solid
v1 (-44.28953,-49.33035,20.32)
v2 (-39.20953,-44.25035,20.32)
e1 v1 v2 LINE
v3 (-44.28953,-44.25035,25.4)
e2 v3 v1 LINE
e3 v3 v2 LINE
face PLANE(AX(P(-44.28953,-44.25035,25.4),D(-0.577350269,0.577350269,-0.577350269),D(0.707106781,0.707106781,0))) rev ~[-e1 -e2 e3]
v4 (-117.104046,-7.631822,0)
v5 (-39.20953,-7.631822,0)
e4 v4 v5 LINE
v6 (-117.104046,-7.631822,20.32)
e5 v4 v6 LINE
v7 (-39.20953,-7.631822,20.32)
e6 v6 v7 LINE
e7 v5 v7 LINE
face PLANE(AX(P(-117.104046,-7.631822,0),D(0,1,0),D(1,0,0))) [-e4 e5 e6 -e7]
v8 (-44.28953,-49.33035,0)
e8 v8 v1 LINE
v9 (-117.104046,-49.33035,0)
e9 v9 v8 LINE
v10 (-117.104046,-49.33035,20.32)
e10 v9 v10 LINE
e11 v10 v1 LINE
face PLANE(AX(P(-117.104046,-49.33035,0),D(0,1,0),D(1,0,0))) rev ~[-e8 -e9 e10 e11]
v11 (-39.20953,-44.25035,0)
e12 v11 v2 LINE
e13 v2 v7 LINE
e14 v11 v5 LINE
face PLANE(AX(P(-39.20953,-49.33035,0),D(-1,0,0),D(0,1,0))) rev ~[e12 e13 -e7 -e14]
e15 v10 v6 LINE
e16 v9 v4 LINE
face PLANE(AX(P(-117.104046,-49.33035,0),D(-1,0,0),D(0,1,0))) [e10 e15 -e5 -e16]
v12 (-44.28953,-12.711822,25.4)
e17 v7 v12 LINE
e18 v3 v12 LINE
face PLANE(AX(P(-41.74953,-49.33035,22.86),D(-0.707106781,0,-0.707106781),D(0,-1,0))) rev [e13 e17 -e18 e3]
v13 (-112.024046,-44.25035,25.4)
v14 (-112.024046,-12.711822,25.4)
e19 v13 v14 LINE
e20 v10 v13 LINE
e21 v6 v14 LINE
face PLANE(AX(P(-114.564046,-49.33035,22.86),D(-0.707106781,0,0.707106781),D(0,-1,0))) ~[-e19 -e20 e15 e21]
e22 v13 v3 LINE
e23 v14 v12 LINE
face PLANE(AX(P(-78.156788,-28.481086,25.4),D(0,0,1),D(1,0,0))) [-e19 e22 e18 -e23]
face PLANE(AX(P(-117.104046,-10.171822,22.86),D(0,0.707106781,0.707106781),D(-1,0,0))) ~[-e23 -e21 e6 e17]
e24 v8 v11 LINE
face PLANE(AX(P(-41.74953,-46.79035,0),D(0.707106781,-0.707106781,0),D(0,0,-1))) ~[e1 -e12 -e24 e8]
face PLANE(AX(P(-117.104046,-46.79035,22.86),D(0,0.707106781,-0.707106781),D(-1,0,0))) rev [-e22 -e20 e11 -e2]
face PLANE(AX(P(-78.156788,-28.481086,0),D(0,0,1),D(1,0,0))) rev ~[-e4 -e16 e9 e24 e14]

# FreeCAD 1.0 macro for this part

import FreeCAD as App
import Part
import Sketcher

V = App.Vector
Q = App.Units.Quantity


def edges_at(feature, points):
    """Names of the edges that pass closest to the given points."""
    edges = feature.Shape.Edges
    near = lambda p: min(range(len(edges)), key=lambda i: edges[i].distToShape(Part.Vertex(*p))[0])
    return sorted({f"Edge{near(p) + 1}" for p in points})


def add_polygon(sketch, points):
    """Adds a closed chain of lines whose ends are joined by coincident constraints."""
    first, n = sketch.GeometryCount, len(points)
    for a, b in zip(points, points[1:] + points[:1]):
        sketch.addGeometry(Part.LineSegment(App.Vector(*a, 0), App.Vector(*b, 0)), False)
    for i in range(n):
        sketch.addConstraint(Sketcher.Constraint("Coincident", first + i, 2, first + (i + 1) % n, 1))

doc = App.newDocument("Part")
body = doc.addObject("PartDesign::Body", "Body")

# Sketch on XY plane
sketch1 = body.newObject("Sketcher::SketchObject", "Sketch")
sketch1.AttachmentSupport = (doc.getObject("XY_Plane"), [""])
sketch1.MapMode = "FlatFace"
add_polygon(sketch1, [(-117, -8), (-117, -49), (-39, -49), (-39, -8)])  # lines 0-3
sketch1.addConstraint([
    Sketcher.Constraint("Vertical", 0),
    Sketcher.Constraint("Horizontal", 1),
    Sketcher.Constraint("Vertical", 2),
    Sketcher.Constraint("Horizontal", 3),
    Sketcher.Constraint("DistanceY", 0, 2, 0, 1, Q("41.698528 mm")),
    Sketcher.Constraint("DistanceX", 1, 1, 1, 2, Q("77.894516 mm")),
    Sketcher.Constraint("DistanceY", 0, 2, -1, 1, Q("49.33035 mm")),
    Sketcher.Constraint("DistanceX", 1, 2, -1, 1, Q("39.20953 mm")),
])
pad1 = body.newObject("PartDesign::Pad", "Pad")
pad1.Profile = sketch1
pad1.Length = Q("1 in")
doc.recompute()

chamfer = body.newObject("PartDesign::Chamfer", "Chamfer")
chamfer.Base = (pad1, edges_at(pad1, [
    (-39.21, -49.33, 12.7),
    (-78.157, -49.33, 25.4),
    (-39.21, -28.481, 25.4),
    (-78.157, -7.632, 25.4),
    (-117.104, -28.481, 25.4),
]))
chamfer.Size = Q("0.2 in")

doc.recompute()
